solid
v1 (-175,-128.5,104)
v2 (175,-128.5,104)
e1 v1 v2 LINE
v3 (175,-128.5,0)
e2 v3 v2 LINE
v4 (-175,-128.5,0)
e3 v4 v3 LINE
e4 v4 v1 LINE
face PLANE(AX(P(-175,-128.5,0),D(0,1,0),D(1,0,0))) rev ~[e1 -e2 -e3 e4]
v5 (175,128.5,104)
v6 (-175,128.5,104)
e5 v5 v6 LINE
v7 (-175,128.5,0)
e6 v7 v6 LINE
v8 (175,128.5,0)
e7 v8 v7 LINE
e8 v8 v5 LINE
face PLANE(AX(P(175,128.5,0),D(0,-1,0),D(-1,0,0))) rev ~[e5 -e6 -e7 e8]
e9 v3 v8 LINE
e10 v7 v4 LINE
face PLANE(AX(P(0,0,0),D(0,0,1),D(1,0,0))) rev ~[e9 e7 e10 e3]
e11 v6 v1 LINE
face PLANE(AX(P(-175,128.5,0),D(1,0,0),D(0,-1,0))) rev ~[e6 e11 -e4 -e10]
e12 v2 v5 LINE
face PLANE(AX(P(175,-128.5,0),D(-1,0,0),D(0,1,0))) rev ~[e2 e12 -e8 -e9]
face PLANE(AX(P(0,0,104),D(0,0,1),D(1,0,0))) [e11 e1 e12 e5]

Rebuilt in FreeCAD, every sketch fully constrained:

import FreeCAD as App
import Part
import Sketcher
from FreeCAD import Vector
Q = App.Units.Quantity


def add_polygon(sketch, points):
    """Adds a closed chain of lines whose ends are joined by coincident constraints."""
    first, n = sketch.GeometryCount, len(points)
    for a, b in zip(points, points[1:] + points[:1]):
        sketch.addGeometry(Part.LineSegment(App.Vector(*a, 0), App.Vector(*b, 0)), False)
    for i in range(n):
        sketch.addConstraint(Sketcher.Constraint("Coincident", first + i, 2, first + (i + 1) % n, 1))

doc = App.newDocument("Part")
body = doc.addObject("PartDesign::Body", "Body")

# Sketch on XY plane
sketch1 = doc.addObject("Sketcher::SketchObject", "Sketch")
body.addObject(sketch1)
sketch1.AttachmentSupport = (doc.XY_Plane, [""])
sketch1.MapMode = "FlatFace"
add_polygon(sketch1, [(-175, 128.5), (-175, -128.5), (175, -128.5), (175, 128.5)])  # lines 0-3
sketch1.addConstraint([
    Sketcher.Constraint("Vertical", 0),
    Sketcher.Constraint("Horizontal", 1),
    Sketcher.Constraint("Vertical", 2),
    Sketcher.Constraint("Horizontal", 3),
    Sketcher.Constraint("Symmetric", 0, 2, 2, 2, -1, 1),
    Sketcher.Constraint("DistanceX", 0, 2, -1, 1, Q("175 mm")),
    Sketcher.Constraint("DistanceY", 0, 2, 0, 1, Q("257 mm")),
])
pad1 = doc.addObject("PartDesign::Pad", "Pad")
body.addObject(pad1)
pad1.Profile = sketch1
pad1.Length = 104

doc.recompute()
